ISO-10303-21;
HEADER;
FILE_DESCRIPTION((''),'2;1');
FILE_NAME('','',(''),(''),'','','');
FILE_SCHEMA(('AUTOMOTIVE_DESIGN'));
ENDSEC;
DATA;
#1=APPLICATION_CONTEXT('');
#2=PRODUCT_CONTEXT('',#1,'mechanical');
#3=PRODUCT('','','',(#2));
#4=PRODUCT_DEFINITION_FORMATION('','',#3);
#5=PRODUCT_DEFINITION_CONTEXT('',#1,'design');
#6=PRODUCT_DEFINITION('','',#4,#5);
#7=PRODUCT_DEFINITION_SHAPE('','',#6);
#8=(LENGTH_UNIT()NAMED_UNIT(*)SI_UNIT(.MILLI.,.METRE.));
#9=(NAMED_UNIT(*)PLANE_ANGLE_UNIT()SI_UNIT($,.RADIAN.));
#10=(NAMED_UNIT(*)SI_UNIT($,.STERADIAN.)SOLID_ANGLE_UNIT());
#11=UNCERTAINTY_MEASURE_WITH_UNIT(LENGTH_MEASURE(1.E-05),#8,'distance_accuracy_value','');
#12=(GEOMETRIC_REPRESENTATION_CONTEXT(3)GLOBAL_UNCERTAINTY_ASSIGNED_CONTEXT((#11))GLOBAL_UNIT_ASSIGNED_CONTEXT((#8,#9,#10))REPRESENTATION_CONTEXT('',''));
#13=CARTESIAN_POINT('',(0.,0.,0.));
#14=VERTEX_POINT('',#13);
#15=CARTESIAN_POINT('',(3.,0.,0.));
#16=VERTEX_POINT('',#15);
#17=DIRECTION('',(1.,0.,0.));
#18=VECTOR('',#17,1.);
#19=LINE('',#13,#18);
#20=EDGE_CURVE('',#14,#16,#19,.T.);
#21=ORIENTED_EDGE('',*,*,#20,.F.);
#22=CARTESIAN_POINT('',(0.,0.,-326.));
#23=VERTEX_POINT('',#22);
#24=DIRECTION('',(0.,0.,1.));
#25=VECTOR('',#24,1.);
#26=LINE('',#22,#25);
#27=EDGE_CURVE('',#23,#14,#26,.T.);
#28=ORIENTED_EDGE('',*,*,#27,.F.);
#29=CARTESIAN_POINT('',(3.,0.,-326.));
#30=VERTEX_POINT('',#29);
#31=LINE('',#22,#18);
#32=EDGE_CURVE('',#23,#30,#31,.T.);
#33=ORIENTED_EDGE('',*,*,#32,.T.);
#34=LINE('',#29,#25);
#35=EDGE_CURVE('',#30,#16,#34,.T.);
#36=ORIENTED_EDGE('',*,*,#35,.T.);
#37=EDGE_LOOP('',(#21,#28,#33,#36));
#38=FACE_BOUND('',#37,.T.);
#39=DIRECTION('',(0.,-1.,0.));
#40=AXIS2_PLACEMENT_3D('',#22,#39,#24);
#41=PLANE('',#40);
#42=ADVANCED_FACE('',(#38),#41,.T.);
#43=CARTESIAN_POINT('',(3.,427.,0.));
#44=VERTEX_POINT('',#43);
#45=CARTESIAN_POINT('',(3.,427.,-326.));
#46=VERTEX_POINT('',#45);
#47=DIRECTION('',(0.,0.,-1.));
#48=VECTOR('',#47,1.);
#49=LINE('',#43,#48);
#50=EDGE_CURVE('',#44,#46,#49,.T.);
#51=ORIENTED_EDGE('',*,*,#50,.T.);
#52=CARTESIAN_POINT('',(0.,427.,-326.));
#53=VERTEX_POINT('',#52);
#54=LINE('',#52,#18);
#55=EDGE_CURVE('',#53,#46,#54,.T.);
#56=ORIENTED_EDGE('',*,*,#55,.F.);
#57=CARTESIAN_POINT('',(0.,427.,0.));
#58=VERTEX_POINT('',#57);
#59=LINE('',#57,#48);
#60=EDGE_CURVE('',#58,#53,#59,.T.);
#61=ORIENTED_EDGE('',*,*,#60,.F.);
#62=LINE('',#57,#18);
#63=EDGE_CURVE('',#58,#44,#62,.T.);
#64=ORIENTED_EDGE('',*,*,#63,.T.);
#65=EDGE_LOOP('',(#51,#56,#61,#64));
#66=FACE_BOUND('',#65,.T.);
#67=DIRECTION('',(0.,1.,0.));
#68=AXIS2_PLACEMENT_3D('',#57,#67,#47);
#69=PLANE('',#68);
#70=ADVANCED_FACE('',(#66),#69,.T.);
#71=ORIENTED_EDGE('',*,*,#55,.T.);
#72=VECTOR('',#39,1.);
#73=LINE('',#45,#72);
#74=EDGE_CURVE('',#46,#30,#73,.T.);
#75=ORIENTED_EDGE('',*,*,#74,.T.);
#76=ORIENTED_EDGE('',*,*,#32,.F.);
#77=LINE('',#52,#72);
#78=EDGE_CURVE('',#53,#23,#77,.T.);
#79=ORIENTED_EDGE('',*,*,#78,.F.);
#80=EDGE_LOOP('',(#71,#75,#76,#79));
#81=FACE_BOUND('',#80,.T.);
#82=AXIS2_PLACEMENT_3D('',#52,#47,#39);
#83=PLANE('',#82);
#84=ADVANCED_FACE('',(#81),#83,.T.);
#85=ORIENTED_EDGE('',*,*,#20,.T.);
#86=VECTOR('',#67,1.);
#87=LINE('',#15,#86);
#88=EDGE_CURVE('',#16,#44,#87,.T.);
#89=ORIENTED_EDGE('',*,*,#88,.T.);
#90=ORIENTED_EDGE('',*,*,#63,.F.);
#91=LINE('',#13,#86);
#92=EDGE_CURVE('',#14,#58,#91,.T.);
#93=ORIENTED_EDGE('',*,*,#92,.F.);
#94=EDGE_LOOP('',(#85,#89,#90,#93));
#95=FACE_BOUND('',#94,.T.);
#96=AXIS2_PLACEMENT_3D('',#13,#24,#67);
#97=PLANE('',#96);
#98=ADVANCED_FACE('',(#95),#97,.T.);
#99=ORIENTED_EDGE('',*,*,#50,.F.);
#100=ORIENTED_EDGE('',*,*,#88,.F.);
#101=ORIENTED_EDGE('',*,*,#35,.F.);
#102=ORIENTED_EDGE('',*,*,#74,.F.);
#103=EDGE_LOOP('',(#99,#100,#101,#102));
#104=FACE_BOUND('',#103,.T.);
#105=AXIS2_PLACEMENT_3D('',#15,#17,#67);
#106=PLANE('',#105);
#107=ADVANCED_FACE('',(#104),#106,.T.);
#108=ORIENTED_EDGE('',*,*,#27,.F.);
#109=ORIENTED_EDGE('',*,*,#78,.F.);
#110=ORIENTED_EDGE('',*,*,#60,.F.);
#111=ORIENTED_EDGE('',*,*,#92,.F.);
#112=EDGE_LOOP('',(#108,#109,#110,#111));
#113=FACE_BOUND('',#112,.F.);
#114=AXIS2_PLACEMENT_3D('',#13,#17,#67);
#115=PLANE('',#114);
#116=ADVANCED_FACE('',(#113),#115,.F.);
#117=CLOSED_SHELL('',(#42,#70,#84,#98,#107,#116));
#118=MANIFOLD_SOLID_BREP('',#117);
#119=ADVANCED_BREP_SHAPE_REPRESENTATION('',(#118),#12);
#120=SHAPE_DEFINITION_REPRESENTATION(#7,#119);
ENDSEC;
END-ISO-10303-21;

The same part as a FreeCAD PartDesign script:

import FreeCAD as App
import Part
import Sketcher
from FreeCAD import Vector
Q = App.Units.Quantity


def add_polygon(sketch, points):
    """Adds a closed chain of lines whose ends are joined by coincident constraints."""
    first, n = sketch.GeometryCount, len(points)
    for a, b in zip(points, points[1:] + points[:1]):
        sketch.addGeometry(Part.LineSegment(App.Vector(*a, 0), App.Vector(*b, 0)), False)
    for i in range(n):
        sketch.addConstraint(Sketcher.Constraint("Coincident", first + i, 2, first + (i + 1) % n, 1))

doc = App.newDocument("Part")
body = doc.addObject("PartDesign::Body", "Body")

sketch1 = body.newObject("Sketcher::SketchObject", "Sketch")
sketch1.AttachmentSupport = (doc.getObject("YZ_Plane"), [""])
sketch1.MapMode = "FlatFace"
add_polygon(sketch1, [(427, 0), (0, 0), (0, -326), (427, -326)])
sketch1.addConstraint([
    Sketcher.Constraint("Horizontal", 0),
    Sketcher.Constraint("Vertical", 1),
    Sketcher.Constraint("Horizontal", 2),
    Sketcher.Constraint("Vertical", 3),
    Sketcher.Constraint("Coincident", 0, 2, -1, 1),
    Sketcher.Constraint("DistanceX", 0, 2, 0, 1, Q("427 mm")),
    Sketcher.Constraint("DistanceY", 1, 2, 1, 1, Q("326 mm")),
])
pad1 = body.newObject("PartDesign::Pad", "Pad")
pad1.Profile = sketch1
pad1.Length = 3

doc.recompute()
